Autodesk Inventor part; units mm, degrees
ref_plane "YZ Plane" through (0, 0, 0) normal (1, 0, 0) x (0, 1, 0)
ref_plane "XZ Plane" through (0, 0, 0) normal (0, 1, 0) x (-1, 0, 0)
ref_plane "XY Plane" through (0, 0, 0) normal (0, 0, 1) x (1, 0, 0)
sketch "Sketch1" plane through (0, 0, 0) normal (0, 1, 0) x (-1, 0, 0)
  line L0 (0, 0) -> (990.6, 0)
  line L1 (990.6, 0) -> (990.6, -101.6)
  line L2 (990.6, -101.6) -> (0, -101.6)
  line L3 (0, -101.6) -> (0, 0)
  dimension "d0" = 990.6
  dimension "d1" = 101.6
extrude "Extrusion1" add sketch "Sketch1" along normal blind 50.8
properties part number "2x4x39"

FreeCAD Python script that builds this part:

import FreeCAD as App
import Part
import Sketcher
Q = App.Units.Quantity


def add_polygon(sketch, points):
    """Adds a closed chain of lines whose ends are joined by coincident constraints."""
    first, n = sketch.GeometryCount, len(points)
    for a, b in zip(points, points[1:] + points[:1]):
        sketch.addGeometry(Part.LineSegment(App.Vector(*a, 0), App.Vector(*b, 0)), False)
    for i in range(n):
        sketch.addConstraint(Sketcher.Constraint("Coincident", first + i, 2, first + (i + 1) % n, 1))

doc = App.newDocument("Part")
body = doc.addObject("PartDesign::Body", "Body")

# Sketch on XZ plane
sketch1 = doc.addObject("Sketcher::SketchObject", "Sketch")
body.addObject(sketch1)
sketch1.AttachmentSupport = (doc.XZ_Plane, [""])
sketch1.MapMode = "FlatFace"
add_polygon(sketch1, [(-991, 0), (0, 0), (0, -102), (-991, -102)])  # lines 0-3
sketch1.addConstraint([
    Sketcher.Constraint("Horizontal", 0),
    Sketcher.Constraint("Vertical", 1),
    Sketcher.Constraint("Horizontal", 2),
    Sketcher.Constraint("Vertical", 3),
    Sketcher.Constraint("Coincident", 0, 2, -1, 1),
    Sketcher.Constraint("DistanceX", 0, 1, 0, 2, Q("39 in")),
    Sketcher.Constraint("DistanceY", 1, 2, 1, 1, Q("4 in")),
])
pad1 = doc.addObject("PartDesign::Pad", "Pad")
body.addObject(pad1)
pad1.Profile = sketch1
pad1.Length = Q("2 in")
pad1.Reversed = True

doc.recompute()
